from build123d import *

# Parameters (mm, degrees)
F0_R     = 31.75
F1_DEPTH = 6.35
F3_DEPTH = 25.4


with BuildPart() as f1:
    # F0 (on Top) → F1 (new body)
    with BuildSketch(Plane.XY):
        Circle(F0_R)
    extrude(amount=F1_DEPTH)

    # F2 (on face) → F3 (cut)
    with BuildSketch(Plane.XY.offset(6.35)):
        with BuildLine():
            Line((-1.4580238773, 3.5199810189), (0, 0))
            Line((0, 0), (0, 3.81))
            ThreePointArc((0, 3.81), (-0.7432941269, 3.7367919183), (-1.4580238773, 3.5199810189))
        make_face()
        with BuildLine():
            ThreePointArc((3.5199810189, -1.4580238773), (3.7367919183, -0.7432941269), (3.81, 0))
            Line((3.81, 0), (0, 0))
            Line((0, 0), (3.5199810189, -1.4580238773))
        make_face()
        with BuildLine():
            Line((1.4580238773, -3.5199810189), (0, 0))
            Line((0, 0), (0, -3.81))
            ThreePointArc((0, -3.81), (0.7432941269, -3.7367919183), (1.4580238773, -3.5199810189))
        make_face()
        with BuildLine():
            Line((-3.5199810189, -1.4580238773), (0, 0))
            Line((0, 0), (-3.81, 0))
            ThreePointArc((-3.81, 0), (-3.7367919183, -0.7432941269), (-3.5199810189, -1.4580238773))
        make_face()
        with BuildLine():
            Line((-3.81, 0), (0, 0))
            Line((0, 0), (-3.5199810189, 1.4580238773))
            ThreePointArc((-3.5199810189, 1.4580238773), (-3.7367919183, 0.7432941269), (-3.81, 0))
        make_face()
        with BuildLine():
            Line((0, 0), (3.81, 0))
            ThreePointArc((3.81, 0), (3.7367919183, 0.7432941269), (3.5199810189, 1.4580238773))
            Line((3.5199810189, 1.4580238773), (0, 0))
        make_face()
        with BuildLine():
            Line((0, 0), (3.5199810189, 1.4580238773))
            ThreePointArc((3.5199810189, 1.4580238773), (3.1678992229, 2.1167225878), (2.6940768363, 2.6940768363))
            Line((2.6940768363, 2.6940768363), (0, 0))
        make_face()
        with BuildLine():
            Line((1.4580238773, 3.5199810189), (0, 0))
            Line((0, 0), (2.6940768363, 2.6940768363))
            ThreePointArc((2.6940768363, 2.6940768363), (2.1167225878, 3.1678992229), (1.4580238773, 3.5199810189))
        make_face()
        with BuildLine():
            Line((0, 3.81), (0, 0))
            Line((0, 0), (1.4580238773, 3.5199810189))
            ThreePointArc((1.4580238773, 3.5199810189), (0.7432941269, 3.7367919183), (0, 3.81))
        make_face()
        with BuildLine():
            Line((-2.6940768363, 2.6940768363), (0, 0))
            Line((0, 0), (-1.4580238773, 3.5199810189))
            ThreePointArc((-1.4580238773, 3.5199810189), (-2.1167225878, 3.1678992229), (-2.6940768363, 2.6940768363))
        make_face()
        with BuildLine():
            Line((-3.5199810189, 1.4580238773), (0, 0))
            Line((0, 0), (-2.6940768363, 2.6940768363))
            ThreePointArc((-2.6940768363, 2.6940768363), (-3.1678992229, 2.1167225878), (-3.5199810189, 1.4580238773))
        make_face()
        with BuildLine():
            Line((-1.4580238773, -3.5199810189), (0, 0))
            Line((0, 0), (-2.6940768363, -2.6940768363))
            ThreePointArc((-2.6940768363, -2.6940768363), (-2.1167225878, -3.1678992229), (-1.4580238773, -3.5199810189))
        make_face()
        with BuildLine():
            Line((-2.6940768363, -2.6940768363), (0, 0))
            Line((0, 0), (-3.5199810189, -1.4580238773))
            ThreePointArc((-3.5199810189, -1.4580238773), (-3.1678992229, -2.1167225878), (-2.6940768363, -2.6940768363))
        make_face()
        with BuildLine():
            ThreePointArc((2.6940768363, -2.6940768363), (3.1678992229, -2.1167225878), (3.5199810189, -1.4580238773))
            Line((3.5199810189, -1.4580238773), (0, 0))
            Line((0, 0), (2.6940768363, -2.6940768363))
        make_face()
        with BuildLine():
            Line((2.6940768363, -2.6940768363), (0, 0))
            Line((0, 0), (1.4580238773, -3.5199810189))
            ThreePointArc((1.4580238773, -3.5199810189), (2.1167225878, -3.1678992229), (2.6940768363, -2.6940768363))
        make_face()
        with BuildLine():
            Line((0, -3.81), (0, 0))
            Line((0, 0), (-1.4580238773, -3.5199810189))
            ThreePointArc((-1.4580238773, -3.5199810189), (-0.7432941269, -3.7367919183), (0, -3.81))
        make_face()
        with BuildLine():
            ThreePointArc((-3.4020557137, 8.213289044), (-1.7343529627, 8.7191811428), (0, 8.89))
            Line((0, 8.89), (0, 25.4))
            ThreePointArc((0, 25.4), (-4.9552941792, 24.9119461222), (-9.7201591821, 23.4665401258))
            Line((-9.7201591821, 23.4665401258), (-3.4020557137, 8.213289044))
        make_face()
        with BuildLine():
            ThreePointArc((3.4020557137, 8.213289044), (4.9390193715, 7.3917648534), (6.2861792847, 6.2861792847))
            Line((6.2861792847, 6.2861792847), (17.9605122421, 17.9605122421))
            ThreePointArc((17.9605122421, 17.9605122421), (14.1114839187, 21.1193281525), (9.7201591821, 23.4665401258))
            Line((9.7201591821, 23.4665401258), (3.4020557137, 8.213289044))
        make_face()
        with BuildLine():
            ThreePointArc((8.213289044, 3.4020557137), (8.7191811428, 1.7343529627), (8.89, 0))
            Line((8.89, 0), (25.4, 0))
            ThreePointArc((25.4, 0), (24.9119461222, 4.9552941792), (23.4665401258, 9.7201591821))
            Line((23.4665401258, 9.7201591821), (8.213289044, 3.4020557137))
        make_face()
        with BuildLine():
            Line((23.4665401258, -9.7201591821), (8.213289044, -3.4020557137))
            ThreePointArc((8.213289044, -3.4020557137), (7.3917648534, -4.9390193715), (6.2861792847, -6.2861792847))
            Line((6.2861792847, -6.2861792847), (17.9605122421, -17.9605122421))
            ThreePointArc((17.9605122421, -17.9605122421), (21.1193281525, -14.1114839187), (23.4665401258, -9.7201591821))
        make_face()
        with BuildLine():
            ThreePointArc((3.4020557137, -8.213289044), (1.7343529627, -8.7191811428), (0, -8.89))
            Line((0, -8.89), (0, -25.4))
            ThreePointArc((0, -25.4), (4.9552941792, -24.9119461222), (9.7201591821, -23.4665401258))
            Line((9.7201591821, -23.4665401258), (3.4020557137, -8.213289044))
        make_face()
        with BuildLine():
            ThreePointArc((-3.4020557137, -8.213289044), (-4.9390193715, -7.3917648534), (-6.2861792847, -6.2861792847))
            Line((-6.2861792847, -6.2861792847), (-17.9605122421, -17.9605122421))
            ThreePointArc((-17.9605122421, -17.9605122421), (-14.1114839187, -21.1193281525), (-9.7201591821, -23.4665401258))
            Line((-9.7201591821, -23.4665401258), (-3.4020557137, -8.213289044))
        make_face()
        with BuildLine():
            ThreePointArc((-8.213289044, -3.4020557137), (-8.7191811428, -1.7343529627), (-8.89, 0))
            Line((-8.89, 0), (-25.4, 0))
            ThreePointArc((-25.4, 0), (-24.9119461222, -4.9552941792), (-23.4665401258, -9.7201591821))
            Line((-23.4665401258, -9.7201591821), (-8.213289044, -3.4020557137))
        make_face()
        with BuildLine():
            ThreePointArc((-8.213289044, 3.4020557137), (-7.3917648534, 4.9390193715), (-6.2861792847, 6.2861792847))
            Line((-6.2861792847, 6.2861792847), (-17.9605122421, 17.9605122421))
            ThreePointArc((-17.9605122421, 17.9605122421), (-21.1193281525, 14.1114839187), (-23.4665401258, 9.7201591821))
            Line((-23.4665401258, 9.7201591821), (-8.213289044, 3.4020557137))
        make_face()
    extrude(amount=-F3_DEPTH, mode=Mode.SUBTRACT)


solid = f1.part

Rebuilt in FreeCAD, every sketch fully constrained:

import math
import FreeCAD as App
import Part
import Sketcher

V = App.Vector
Q = App.Units.Quantity

doc = App.newDocument("Part")
body = doc.addObject("PartDesign::Body", "Body")

sketch1 = body.newObject("Sketcher::SketchObject", "Sketch")
sketch1.AttachmentSupport = (doc.getObject("XY_Plane"), [""])
sketch1.MapMode = "FlatFace"
sketch1.addGeometry(Part.Circle(V(0, 0, 0), V(0, 0, 1), 32), False)
sketch1.addConstraint([
    Sketcher.Constraint("Coincident", 0, 3, -1, 1),
    Sketcher.Constraint("Diameter", 0, Q("2.5 in")),
])
pad1 = body.newObject("PartDesign::Pad", "Pad")
pad1.Profile = sketch1
pad1.Length = Q("0.25 in")

sketch2 = body.newObject("Sketcher::SketchObject", "Sketch001")
sketch2.AttachmentSupport = (doc.getObject("XY_Plane"), [""])
sketch2.MapMode = "FlatFace"
sketch2.AttachmentOffset = App.Placement(V(0, 0, 0.25 * 25.4), App.Rotation())
sketch2.addGeometry([
    Part.ArcOfCircle(Part.Circle(V(0, 0, 0), V(0, 0, 1), 3.8), math.radians(-22), math.radians(0)),
    Part.ArcOfCircle(Part.Circle(V(0, 0, 0), V(0, 0, 1), 3.8), math.radians(0), math.radians(22)),
    Part.ArcOfCircle(Part.Circle(V(0, 0, 0), V(0, 0, 1), 3.8), math.radians(22), math.radians(45)),
    Part.ArcOfCircle(Part.Circle(V(0, 0, 0), V(0, 0, 1), 3.8), math.radians(45), math.radians(68)),
    Part.ArcOfCircle(Part.Circle(V(0, 0, 0), V(0, 0, 1), 3.8), math.radians(68), math.radians(90)),
    Part.ArcOfCircle(Part.Circle(V(0, 0, 0), V(0, 0, 1), 3.8), math.radians(90), math.radians(112)),
    Part.ArcOfCircle(Part.Circle(V(0, 0, 0), V(0, 0, 1), 3.8), math.radians(112), math.radians(135)),
    Part.ArcOfCircle(Part.Circle(V(0, 0, 0), V(0, 0, 1), 3.8), math.radians(135), math.radians(158)),
    Part.ArcOfCircle(Part.Circle(V(0, 0, 0), V(0, 0, 1), 3.8), math.radians(158), math.radians(180)),
    Part.ArcOfCircle(Part.Circle(V(0, 0, 0), V(0, 0, 1), 3.8), math.radians(180), math.radians(202)),
    Part.ArcOfCircle(Part.Circle(V(0, 0, 0), V(0, 0, 1), 3.8), math.radians(-158), math.radians(-135)),
    Part.ArcOfCircle(Part.Circle(V(0, 0, 0), V(0, 0, 1), 3.8), math.radians(-135), math.radians(-112)),
    Part.ArcOfCircle(Part.Circle(V(0, 0, 0), V(0, 0, 1), 3.8), math.radians(-112), math.radians(-90)),
    Part.ArcOfCircle(Part.Circle(V(0, 0, 0), V(0, 0, 1), 3.8), math.radians(-90), math.radians(-68)),
    Part.ArcOfCircle(Part.Circle(V(0, 0, 0), V(0, 0, 1), 3.8), math.radians(-68), math.radians(-45)),
    Part.ArcOfCircle(Part.Circle(V(0, 0, 0), V(0, 0, 1), 3.8), math.radians(-45), math.radians(-22)),
    Part.ArcOfCircle(Part.Circle(V(0, 0, 0), V(0, 0, 1), 8.9), math.radians(90), math.radians(113)),
    Part.LineSegment(V(0, 8.9, 0), V(0, 25.4, 0)),
    Part.ArcOfCircle(Part.Circle(V(0, 0, 0), V(0, 0, 1), 25.4), math.radians(90), math.radians(112)),
    Part.LineSegment(V(-9.7, 23.5, 0), V(-3.4, 8.2, 0)),
    Part.ArcOfCircle(Part.Circle(V(0, 0, 0), V(0, 0, 1), 8.9), math.radians(45), math.radians(67)),
    Part.LineSegment(V(6.3, 6.3, 0), V(18, 18, 0)),
    Part.ArcOfCircle(Part.Circle(V(0, 0, 0), V(0, 0, 1), 25.4), math.radians(45), math.radians(68)),
    Part.LineSegment(V(9.7, 23.5, 0), V(3.4, 8.2, 0)),
    Part.ArcOfCircle(Part.Circle(V(0, 0, 0), V(0, 0, 1), 8.9), math.radians(0), math.radians(23)),
    Part.LineSegment(V(8.9, 0, 0), V(25.4, 0, 0)),
    Part.ArcOfCircle(Part.Circle(V(0, 0, 0), V(0, 0, 1), 25.4), math.radians(0), math.radians(22)),
    Part.LineSegment(V(23.5, 9.7, 0), V(8.2, 3.4, 0)),
    Part.LineSegment(V(23.5, -9.7, 0), V(8.2, -3.4, 0)),
    Part.ArcOfCircle(Part.Circle(V(0, 0, 0), V(0, 0, 1), 8.9), math.radians(-45), math.radians(-23)),
    Part.LineSegment(V(6.3, -6.3, 0), V(18, -18, 0)),
    Part.ArcOfCircle(Part.Circle(V(0, 0, 0), V(0, 0, 1), 25.4), math.radians(-45), math.radians(-22)),
    Part.ArcOfCircle(Part.Circle(V(0, 0, 0), V(0, 0, 1), 8.9), math.radians(-90), math.radians(-67)),
    Part.LineSegment(V(0, -8.9, 0), V(0, -25.4, 0)),
    Part.ArcOfCircle(Part.Circle(V(0, 0, 0), V(0, 0, 1), 25.4), math.radians(-90), math.radians(-68)),
    Part.LineSegment(V(9.7, -23.5, 0), V(3.4, -8.2, 0)),
    Part.ArcOfCircle(Part.Circle(V(0, 0, 0), V(0, 0, 1), 8.9), math.radians(-135), math.radians(-113)),
    Part.LineSegment(V(-6.3, -6.3, 0), V(-18, -18, 0)),
    Part.ArcOfCircle(Part.Circle(V(0, 0, 0), V(0, 0, 1), 25.4), math.radians(-135), math.radians(-112)),
    Part.LineSegment(V(-9.7, -23.5, 0), V(-3.4, -8.2, 0)),
    Part.ArcOfCircle(Part.Circle(V(0, 0, 0), V(0, 0, 1), 8.9), math.radians(180), math.radians(203)),
    Part.LineSegment(V(-8.9, 0, 0), V(-25.4, 0, 0)),
    Part.ArcOfCircle(Part.Circle(V(0, 0, 0), V(0, 0, 1), 25.4), math.radians(180), math.radians(202)),
    Part.LineSegment(V(-23.5, -9.7, 0), V(-8.2, -3.4, 0)),
    Part.ArcOfCircle(Part.Circle(V(0, 0, 0), V(0, 0, 1), 8.9), math.radians(135), math.radians(157)),
    Part.LineSegment(V(-6.3, 6.3, 0), V(-18, 18, 0)),
    Part.ArcOfCircle(Part.Circle(V(0, 0, 0), V(0, 0, 1), 25.4), math.radians(135), math.radians(158)),
    Part.LineSegment(V(-23.5, 9.7, 0), V(-8.2, 3.4, 0)),
], False)
sketch2.addConstraint([
    Sketcher.Constraint("Tangent", 0, 2, 1, 1),
    Sketcher.Constraint("Tangent", 1, 2, 2, 1),
    Sketcher.Constraint("Tangent", 2, 2, 3, 1),
    Sketcher.Constraint("Tangent", 3, 2, 4, 1),
    Sketcher.Constraint("Tangent", 4, 2, 5, 1),
    Sketcher.Constraint("Tangent", 5, 2, 6, 1),
    Sketcher.Constraint("Tangent", 6, 2, 7, 1),
    Sketcher.Constraint("Tangent", 7, 2, 8, 1),
    Sketcher.Constraint("Tangent", 8, 2, 9, 1),
    Sketcher.Constraint("Tangent", 9, 2, 10, 1),
    Sketcher.Constraint("Tangent", 10, 2, 11, 1),
    Sketcher.Constraint("Tangent", 11, 2, 12, 1),
    Sketcher.Constraint("Tangent", 12, 2, 13, 1),
    Sketcher.Constraint("Tangent", 13, 2, 14, 1),
    Sketcher.Constraint("Tangent", 14, 2, 15, 1),
    Sketcher.Constraint("Tangent", 15, 2, 0, 1),
    Sketcher.Constraint("Coincident", 16, 1, 17, 1),
    Sketcher.Constraint("Coincident", 17, 2, 18, 1),
    Sketcher.Constraint("Coincident", 18, 2, 19, 1),
    Sketcher.Constraint("Coincident", 19, 2, 16, 2),
    Sketcher.Constraint("Coincident", 20, 1, 21, 1),
    Sketcher.Constraint("Coincident", 21, 2, 22, 1),
    Sketcher.Constraint("Coincident", 22, 2, 23, 1),
    Sketcher.Constraint("Coincident", 23, 2, 20, 2),
    Sketcher.Constraint("Coincident", 24, 1, 25, 1),
    Sketcher.Constraint("Coincident", 25, 2, 26, 1),
    Sketcher.Constraint("Coincident", 26, 2, 27, 1),
    Sketcher.Constraint("Coincident", 27, 2, 24, 2),
    Sketcher.Constraint("Coincident", 28, 2, 29, 2),
    Sketcher.Constraint("Coincident", 29, 1, 30, 1),
    Sketcher.Constraint("Coincident", 30, 2, 31, 1),
    Sketcher.Constraint("Coincident", 31, 2, 28, 1),
    Sketcher.Constraint("Coincident", 32, 1, 33, 1),
    Sketcher.Constraint("Coincident", 33, 2, 34, 1),
    Sketcher.Constraint("Coincident", 34, 2, 35, 1),
    Sketcher.Constraint("Coincident", 35, 2, 32, 2),
    Sketcher.Constraint("Coincident", 36, 1, 37, 1),
    Sketcher.Constraint("Coincident", 37, 2, 38, 1),
    Sketcher.Constraint("Coincident", 38, 2, 39, 1),
    Sketcher.Constraint("Coincident", 39, 2, 36, 2),
    Sketcher.Constraint("Coincident", 40, 1, 41, 1),
    Sketcher.Constraint("Coincident", 41, 2, 42, 1),
    Sketcher.Constraint("Coincident", 42, 2, 43, 1),
    Sketcher.Constraint("Coincident", 43, 2, 40, 2),
    Sketcher.Constraint("Coincident", 44, 1, 45, 1),
    Sketcher.Constraint("Coincident", 45, 2, 46, 1),
    Sketcher.Constraint("Coincident", 46, 2, 47, 1),
    Sketcher.Constraint("Coincident", 47, 2, 44, 2),
    Sketcher.Constraint("Vertical", 17),
    Sketcher.Constraint("Horizontal", 25),
    Sketcher.Constraint("Vertical", 33),
    Sketcher.Constraint("Horizontal", 41),
    Sketcher.Constraint("Coincident", 0, 3, -1, 1),
    Sketcher.Constraint("Coincident", 2, 3, -1, 1),
    Sketcher.Constraint("Coincident", 4, 3, -1, 1),
    Sketcher.Constraint("Coincident", 6, 3, -1, 1),
    Sketcher.Constraint("Coincident", 8, 3, -1, 1),
    Sketcher.Constraint("Coincident", 10, 3, -1, 1),
    Sketcher.Constraint("Coincident", 12, 3, -1, 1),
    Sketcher.Constraint("Coincident", 16, 3, -1, 1),
    Sketcher.Constraint("Coincident", 18, 3, -1, 1),
    Sketcher.Constraint("Coincident", 20, 3, -1, 1),
    Sketcher.Constraint("Coincident", 22, 3, -1, 1),
    Sketcher.Constraint("Coincident", 24, 3, -1, 1),
    Sketcher.Constraint("Coincident", 26, 3, -1, 1),
    Sketcher.Constraint("Coincident", 29, 3, -1, 1),
    Sketcher.Constraint("Coincident", 31, 3, -1, 1),
    Sketcher.Constraint("Coincident", 32, 3, -1, 1),
    Sketcher.Constraint("Coincident", 34, 3, -1, 1),
    Sketcher.Constraint("Coincident", 36, 3, -1, 1),
    Sketcher.Constraint("Coincident", 38, 3, -1, 1),
    Sketcher.Constraint("Coincident", 40, 3, -1, 1),
    Sketcher.Constraint("Coincident", 42, 3, -1, 1),
    Sketcher.Constraint("Coincident", 44, 3, -1, 1),
    Sketcher.Constraint("Coincident", 46, 3, -1, 1),
    Sketcher.Constraint("Equal", 12, 13),
    Sketcher.Constraint("Equal", 16, 20),
    Sketcher.Constraint("Equal", 18, 22),
    Sketcher.Constraint("Equal", 20, 24),
    Sketcher.Constraint("Equal", 22, 26),
    Sketcher.Constraint("Equal", 24, 29),
    Sketcher.Constraint("Equal", 26, 31),
    Sketcher.Constraint("Equal", 29, 32),
    Sketcher.Constraint("Equal", 31, 34),
    Sketcher.Constraint("Equal", 32, 36),
    Sketcher.Constraint("Equal", 34, 38),
    Sketcher.Constraint("Equal", 36, 40),
    Sketcher.Constraint("Equal", 38, 42),
    Sketcher.Constraint("Equal", 40, 44),
    Sketcher.Constraint("Equal", 42, 46),
    Sketcher.Constraint("PointOnObject", 0, 2, -1),
    Sketcher.Constraint("PointOnObject", 4, 2, -2),
    Sketcher.Constraint("PointOnObject", 8, 2, -1),
    Sketcher.Constraint("PointOnObject", 12, 2, -2),
    Sketcher.Constraint("PointOnObject", 16, 1, -2),
    Sketcher.Constraint("PointOnObject", 24, 1, -1),
    Sketcher.Constraint("PointOnObject", 32, 1, -2),
    Sketcher.Constraint("PointOnObject", 40, 1, -1),
    Sketcher.Constraint("Perpendicular", 19, 27),
    Sketcher.Constraint("Perpendicular", 23, 28),
    Sketcher.Constraint("Perpendicular", 21, 30),
    Sketcher.Constraint("Perpendicular", 27, 35),
    Sketcher.Constraint("Perpendicular", 30, 37),
    Sketcher.Constraint("Perpendicular", 28, 39),
    Sketcher.Constraint("Perpendicular", 35, 43),
    Sketcher.Constraint("Perpendicular", 37, 45),
    Sketcher.Constraint("Perpendicular", 39, 47),
    Sketcher.Constraint("Horizontal", 3, 2, 5, 2),
    Sketcher.Constraint("Horizontal", 2, 2, 6, 2),
    Sketcher.Constraint("Horizontal", 1, 2, 7, 2),
    Sketcher.Constraint("Horizontal", 11, 2, 13, 2),
    Sketcher.Constraint("Horizontal", 10, 2, 14, 2),
    Sketcher.Constraint("Horizontal", 9, 2, 15, 2),
    Sketcher.Constraint("Horizontal", 18, 2, 22, 2),
    Sketcher.Constraint("Horizontal", 19, 2, 23, 2),
    Sketcher.Constraint("Horizontal", 29, 1, 36, 1),
    Sketcher.Constraint("Horizontal", 30, 2, 37, 2),
    Sketcher.Constraint("Horizontal", 34, 2, 38, 2),
    Sketcher.Constraint("Horizontal", 31, 2, 42, 2),
    Sketcher.Constraint("Horizontal", 20, 1, 44, 1),
    Sketcher.Constraint("Horizontal", 26, 2, 46, 2),
    Sketcher.Constraint("Vertical", 7, 2, 9, 2),
    Sketcher.Constraint("Vertical", 6, 2, 10, 2),
    Sketcher.Constraint("Vertical", 5, 2, 11, 2),
    Sketcher.Constraint("Vertical", 27, 2, 28, 2),
    Sketcher.Constraint("Vertical", 20, 1, 29, 1),
    Sketcher.Constraint("Vertical", 22, 2, 34, 2),
    Sketcher.Constraint("Radius", 18, Q("1 in")),
    Sketcher.Constraint("Radius", 0, Q("0.15 in")),
    Sketcher.Constraint("Radius", 16, Q("0.35 in")),
    Sketcher.Constraint("Angle", 19, Q("-67.5 deg")),
    Sketcher.Constraint("DistanceX", -1, 1, 1, 2, 3.519981),
    Sketcher.Constraint("DistanceY", -1, 1, 3, 2, 3.519981),
    Sketcher.Constraint("DistanceX", 18, 2, -1, 1, 9.720159),
    Sketcher.Constraint("DistanceX", -1, 1, 20, 1, 6.286179),
    Sketcher.Constraint("DistanceX", -1, 1, 26, 2, 23.46654),
    Sketcher.Constraint("DistanceX", -1, 1, 2, 2, 2.694077),
])
pocket1 = body.newObject("PartDesign::Pocket", "Pocket")
pocket1.Profile = sketch2
pocket1.Length = Q("1 in")

doc.recompute()
